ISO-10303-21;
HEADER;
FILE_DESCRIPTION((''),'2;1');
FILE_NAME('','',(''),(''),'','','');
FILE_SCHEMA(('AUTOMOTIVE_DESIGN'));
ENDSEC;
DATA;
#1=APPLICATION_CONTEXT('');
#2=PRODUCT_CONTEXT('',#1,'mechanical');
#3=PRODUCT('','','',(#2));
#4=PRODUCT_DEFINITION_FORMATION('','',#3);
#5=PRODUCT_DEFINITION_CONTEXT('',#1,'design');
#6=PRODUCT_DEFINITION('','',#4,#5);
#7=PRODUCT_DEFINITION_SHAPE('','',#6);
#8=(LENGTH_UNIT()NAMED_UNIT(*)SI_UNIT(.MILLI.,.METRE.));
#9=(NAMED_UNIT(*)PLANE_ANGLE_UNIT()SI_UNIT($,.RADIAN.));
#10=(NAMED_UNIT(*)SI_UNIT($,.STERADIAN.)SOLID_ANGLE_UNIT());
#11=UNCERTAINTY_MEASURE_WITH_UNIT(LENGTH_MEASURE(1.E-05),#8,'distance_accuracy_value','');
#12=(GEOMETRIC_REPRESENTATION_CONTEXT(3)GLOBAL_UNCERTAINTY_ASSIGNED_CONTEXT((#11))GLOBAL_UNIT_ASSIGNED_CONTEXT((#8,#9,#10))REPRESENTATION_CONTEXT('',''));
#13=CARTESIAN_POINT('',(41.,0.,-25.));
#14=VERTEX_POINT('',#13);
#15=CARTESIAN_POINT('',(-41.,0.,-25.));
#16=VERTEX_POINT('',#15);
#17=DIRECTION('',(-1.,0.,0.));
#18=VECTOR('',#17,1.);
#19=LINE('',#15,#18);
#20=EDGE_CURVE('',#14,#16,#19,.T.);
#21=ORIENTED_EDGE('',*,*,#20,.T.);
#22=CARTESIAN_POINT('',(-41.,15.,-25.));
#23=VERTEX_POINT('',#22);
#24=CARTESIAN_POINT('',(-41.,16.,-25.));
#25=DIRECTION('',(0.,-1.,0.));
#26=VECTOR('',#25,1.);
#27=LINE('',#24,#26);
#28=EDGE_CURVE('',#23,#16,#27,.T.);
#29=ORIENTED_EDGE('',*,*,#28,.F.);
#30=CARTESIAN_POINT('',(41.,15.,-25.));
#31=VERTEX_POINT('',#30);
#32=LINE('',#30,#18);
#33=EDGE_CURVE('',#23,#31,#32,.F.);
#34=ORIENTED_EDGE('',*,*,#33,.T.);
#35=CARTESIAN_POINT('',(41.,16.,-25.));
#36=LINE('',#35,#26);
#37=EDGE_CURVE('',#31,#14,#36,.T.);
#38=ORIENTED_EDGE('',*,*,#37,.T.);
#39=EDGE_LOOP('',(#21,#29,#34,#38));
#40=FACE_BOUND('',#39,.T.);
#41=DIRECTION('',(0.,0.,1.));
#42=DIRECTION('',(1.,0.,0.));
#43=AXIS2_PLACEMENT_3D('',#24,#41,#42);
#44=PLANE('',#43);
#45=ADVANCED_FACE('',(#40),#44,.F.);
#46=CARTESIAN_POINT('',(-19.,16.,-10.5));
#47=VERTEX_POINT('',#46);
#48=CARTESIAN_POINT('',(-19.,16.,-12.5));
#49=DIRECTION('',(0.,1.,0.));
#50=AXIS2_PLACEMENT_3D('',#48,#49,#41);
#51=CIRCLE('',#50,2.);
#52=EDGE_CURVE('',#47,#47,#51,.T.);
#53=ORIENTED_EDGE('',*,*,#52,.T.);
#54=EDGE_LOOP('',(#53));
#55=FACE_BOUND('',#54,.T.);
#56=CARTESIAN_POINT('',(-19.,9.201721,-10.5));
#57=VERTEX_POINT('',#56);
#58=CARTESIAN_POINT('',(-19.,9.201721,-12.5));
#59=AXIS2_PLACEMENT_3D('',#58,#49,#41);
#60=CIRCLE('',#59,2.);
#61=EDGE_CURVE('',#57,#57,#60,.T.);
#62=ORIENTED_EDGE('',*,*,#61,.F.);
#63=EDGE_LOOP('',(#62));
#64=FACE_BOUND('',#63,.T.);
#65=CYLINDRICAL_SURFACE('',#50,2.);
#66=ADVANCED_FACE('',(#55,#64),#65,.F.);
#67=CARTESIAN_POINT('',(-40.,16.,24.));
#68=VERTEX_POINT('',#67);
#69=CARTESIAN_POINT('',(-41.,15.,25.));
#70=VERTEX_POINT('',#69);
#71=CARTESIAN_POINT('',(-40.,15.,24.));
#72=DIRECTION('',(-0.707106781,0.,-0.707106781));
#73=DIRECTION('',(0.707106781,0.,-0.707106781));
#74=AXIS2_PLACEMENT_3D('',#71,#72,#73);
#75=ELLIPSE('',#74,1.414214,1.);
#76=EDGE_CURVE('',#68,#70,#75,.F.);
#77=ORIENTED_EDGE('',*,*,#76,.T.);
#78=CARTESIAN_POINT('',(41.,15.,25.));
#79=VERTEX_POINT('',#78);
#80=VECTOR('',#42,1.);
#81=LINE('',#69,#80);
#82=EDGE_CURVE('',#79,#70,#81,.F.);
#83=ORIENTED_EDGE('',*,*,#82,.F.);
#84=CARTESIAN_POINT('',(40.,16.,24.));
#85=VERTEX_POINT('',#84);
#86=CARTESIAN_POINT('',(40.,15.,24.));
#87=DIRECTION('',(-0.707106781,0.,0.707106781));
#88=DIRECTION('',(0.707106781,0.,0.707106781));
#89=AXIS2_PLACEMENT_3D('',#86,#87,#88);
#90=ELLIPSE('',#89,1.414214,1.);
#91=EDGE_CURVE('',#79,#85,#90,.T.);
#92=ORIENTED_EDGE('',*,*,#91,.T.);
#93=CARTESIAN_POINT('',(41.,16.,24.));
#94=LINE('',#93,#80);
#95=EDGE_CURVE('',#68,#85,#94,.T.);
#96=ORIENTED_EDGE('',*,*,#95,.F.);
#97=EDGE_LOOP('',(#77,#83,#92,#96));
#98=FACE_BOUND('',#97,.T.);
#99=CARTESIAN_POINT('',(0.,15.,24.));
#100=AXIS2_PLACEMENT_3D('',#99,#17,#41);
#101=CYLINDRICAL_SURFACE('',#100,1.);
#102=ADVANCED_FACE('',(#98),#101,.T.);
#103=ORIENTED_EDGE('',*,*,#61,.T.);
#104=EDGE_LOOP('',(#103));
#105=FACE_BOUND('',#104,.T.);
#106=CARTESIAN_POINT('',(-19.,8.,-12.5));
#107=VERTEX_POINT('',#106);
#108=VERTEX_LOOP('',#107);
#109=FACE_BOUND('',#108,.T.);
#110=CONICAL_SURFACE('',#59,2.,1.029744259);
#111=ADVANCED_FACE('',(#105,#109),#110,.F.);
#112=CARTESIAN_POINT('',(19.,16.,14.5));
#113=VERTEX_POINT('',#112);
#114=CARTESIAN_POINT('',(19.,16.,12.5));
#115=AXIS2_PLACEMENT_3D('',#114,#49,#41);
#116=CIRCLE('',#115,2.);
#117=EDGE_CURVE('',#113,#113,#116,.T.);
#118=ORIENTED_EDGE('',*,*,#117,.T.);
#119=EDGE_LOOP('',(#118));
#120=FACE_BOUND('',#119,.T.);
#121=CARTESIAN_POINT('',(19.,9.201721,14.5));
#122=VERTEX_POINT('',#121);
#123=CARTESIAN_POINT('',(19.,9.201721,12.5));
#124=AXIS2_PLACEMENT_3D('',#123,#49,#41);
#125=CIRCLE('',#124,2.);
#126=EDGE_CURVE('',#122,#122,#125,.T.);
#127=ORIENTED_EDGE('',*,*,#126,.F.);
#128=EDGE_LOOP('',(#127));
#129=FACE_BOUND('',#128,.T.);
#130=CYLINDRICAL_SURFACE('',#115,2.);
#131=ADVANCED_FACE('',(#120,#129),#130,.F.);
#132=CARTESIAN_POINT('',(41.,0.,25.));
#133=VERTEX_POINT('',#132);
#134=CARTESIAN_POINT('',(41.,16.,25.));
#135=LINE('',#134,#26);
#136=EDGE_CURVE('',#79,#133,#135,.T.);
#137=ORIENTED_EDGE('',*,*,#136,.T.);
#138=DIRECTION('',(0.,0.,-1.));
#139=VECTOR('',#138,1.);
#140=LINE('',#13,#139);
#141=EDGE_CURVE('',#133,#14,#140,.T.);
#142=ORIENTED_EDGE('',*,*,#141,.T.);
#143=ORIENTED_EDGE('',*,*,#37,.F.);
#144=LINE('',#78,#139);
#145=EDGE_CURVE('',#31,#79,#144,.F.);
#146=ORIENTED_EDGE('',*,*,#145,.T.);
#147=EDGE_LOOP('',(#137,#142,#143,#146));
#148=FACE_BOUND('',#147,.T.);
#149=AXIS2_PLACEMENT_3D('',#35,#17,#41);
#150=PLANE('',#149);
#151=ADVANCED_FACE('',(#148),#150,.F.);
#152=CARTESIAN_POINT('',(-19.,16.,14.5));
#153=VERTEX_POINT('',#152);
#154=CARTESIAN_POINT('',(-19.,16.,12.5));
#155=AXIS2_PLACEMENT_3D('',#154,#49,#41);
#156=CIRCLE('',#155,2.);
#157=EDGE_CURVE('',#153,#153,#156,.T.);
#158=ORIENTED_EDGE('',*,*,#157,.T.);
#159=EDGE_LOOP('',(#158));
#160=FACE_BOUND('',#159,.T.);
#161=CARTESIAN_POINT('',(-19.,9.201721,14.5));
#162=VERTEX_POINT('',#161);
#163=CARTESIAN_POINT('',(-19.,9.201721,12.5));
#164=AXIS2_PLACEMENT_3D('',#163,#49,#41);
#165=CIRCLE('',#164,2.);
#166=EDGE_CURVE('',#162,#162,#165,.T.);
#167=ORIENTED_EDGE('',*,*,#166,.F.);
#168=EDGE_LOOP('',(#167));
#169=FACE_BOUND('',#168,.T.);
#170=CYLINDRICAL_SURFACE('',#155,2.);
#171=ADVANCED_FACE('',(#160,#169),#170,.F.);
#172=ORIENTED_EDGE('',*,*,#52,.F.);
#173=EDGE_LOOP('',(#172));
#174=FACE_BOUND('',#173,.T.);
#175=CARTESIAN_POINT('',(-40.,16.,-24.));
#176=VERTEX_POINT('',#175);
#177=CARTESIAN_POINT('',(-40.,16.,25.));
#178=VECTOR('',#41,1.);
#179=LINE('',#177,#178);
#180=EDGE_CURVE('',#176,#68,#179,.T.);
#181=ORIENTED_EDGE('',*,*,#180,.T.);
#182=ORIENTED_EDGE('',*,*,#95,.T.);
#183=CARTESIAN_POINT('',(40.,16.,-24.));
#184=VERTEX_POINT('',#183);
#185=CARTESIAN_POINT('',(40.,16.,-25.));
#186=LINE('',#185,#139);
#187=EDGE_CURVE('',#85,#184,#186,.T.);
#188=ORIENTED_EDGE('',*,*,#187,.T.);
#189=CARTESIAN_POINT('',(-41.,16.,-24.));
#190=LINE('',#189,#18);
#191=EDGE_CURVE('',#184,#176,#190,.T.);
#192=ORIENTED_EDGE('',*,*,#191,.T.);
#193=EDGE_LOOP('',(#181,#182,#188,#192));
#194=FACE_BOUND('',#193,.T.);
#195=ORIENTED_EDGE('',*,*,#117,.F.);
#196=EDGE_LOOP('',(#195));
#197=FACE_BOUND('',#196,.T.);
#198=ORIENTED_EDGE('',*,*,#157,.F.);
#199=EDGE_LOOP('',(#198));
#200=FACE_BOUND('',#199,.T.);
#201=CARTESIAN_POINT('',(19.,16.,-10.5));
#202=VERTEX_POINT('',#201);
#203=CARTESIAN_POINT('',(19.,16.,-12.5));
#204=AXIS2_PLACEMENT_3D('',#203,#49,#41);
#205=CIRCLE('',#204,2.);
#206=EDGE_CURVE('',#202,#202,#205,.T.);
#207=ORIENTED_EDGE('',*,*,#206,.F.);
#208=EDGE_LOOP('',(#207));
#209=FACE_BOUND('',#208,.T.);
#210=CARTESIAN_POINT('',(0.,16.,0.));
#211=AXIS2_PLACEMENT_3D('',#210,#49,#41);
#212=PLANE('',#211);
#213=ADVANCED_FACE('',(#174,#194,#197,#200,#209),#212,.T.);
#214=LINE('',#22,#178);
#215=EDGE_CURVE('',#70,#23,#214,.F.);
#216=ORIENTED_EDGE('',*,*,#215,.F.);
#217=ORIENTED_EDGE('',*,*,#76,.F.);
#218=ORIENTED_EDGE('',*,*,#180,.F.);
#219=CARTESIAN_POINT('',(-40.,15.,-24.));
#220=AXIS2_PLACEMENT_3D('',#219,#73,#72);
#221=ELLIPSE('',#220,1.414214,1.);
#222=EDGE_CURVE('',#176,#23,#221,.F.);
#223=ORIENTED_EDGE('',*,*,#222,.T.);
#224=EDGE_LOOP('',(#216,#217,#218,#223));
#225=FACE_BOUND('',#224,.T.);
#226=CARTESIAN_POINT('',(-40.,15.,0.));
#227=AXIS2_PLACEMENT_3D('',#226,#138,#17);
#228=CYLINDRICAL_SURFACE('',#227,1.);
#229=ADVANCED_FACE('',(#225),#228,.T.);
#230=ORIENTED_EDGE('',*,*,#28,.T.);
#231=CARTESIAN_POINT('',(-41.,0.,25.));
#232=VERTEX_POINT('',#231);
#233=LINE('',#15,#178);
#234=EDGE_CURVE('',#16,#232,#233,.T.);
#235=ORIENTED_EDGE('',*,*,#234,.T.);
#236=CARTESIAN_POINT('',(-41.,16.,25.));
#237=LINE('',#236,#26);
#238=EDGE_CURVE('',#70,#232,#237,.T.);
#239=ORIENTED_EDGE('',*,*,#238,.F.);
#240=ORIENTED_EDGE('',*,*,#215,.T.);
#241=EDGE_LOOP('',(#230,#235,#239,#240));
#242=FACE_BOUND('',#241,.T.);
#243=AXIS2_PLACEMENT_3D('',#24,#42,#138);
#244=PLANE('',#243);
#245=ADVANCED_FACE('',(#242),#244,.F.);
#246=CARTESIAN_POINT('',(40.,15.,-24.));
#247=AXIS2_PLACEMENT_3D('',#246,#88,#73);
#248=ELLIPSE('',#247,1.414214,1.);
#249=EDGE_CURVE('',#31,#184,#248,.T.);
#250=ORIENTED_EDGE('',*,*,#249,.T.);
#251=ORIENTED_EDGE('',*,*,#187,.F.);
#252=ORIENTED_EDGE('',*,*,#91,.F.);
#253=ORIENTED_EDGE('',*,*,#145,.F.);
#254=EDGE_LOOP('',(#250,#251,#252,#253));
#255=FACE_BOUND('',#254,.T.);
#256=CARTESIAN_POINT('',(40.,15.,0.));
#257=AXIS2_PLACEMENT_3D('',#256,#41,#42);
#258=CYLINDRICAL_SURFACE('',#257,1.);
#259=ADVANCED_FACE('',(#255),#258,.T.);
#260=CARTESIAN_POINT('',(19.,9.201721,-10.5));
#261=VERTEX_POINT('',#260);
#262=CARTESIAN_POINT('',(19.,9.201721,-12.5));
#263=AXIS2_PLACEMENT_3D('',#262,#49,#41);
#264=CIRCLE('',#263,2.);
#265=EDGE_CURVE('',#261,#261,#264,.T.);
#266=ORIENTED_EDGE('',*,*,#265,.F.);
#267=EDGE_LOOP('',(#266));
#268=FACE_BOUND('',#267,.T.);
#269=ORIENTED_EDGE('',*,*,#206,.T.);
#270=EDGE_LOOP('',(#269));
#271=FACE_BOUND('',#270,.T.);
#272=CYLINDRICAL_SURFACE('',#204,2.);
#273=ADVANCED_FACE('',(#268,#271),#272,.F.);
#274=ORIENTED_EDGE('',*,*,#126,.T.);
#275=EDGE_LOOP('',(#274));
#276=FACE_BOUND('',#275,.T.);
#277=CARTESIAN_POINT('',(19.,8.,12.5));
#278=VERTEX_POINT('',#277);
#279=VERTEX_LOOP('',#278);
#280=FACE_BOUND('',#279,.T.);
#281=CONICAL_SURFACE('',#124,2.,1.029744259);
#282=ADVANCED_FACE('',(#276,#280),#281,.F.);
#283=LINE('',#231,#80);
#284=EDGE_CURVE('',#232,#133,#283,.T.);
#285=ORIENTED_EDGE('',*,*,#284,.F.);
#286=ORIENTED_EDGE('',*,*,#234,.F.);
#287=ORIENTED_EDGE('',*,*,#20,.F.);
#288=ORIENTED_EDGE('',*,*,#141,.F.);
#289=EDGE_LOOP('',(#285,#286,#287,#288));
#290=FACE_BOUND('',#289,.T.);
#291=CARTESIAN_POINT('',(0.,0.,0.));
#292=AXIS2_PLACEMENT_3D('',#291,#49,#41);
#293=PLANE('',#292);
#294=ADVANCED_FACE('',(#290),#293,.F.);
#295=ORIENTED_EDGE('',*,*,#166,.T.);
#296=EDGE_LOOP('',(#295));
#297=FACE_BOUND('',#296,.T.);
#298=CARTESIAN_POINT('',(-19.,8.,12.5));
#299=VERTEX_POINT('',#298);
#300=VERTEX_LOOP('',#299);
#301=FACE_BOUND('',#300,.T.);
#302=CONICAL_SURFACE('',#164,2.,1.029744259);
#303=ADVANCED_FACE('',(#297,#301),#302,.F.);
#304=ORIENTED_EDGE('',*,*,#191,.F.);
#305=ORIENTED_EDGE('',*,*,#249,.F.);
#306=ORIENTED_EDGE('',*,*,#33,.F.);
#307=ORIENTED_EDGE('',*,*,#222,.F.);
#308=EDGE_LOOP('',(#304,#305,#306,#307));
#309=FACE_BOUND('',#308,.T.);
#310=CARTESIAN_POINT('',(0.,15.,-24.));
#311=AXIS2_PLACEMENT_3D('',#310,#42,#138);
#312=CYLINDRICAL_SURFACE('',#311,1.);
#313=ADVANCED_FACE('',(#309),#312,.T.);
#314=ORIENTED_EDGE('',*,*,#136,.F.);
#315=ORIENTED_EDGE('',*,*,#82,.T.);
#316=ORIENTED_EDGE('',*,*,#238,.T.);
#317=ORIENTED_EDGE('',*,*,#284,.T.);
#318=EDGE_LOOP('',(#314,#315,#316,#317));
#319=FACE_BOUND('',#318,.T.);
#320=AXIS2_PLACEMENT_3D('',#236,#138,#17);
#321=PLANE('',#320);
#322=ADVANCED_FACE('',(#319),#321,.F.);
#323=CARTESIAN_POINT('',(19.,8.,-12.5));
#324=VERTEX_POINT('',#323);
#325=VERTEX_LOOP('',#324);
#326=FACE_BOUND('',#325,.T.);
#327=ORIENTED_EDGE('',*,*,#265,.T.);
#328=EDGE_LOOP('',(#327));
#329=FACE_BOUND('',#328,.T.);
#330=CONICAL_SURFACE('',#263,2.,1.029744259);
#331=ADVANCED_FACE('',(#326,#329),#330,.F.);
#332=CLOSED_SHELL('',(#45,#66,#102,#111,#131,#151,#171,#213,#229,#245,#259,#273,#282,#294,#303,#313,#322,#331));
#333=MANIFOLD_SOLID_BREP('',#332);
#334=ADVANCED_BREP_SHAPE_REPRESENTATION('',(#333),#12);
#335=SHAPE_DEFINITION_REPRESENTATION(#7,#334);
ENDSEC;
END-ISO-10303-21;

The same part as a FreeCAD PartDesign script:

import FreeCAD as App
import Part
import Sketcher

V = App.Vector
Q = App.Units.Quantity


def edges_at(feature, points):
    """Names of the edges that pass closest to the given points."""
    edges = feature.Shape.Edges
    near = lambda p: min(range(len(edges)), key=lambda i: edges[i].distToShape(Part.Vertex(*p))[0])
    return sorted({f"Edge{near(p) + 1}" for p in points})

doc = App.newDocument("Part")
body = doc.addObject("PartDesign::Body", "Body")

# Sketch on XZ plane
sketch1 = doc.addObject("Sketcher::SketchObject", "Sketch")
body.addObject(sketch1)
sketch1.AttachmentSupport = (doc.XZ_Plane, [""])
sketch1.MapMode = "FlatFace"
sketch1.addGeometry([
    Part.LineSegment(V(-41, -25, 0), V(-41, 25, 0)),
    Part.LineSegment(V(-41, 25, 0), V(41, 25, 0)),
    Part.LineSegment(V(41, 25, 0), V(41, -25, 0)),
    Part.LineSegment(V(41, -25, 0), V(-41, -25, 0)),
], False)
sketch1.addConstraint([
    Sketcher.Constraint("Coincident", 0, 2, 1, 1),
    Sketcher.Constraint("Coincident", 1, 2, 2, 1),
    Sketcher.Constraint("Coincident", 2, 2, 3, 1),
    Sketcher.Constraint("Coincident", 3, 2, 0, 1),
    Sketcher.Constraint("Vertical", 0),
    Sketcher.Constraint("Horizontal", 1),
    Sketcher.Constraint("Vertical", 2),
    Sketcher.Constraint("Horizontal", 3),
    Sketcher.Constraint("Symmetric", 0, 2, 2, 2, -1, 1),
    Sketcher.Constraint("DistanceX", 1, 1, 1, 2, Q("82 mm")),
    Sketcher.Constraint("DistanceY", 0, 1, 0, 2, Q("50 mm")),
])
pad1 = doc.addObject("PartDesign::Pad", "Pad")
body.addObject(pad1)
pad1.Profile = sketch1
pad1.Length = 16
pad1.Reversed = True
doc.recompute()

fillet = doc.addObject("PartDesign::Fillet", "Fillet")
body.addObject(fillet)
fillet.Base = (pad1, edges_at(pad1, [
    (-41, 16, 0),
    (0, 16, 25),
    (41, 16, 0),
    (0, 16, -25),
]))
fillet.Radius = 1

# Sketch on XZ plane
sketch2 = doc.addObject("Sketcher::SketchObject", "Sketch001")
body.addObject(sketch2)
sketch2.AttachmentSupport = (doc.XZ_Plane, [""])
sketch2.MapMode = "FlatFace"
sketch2.AttachmentOffset = App.Placement(V(0, 0, -16), App.Rotation())
sketch2.addGeometry([
    Part.Circle(V(-19, -12.5, 0), V(0, 0, 1), 2),
    Part.Circle(V(19, -12.5, 0), V(0, 0, 1), 2),
    Part.Circle(V(19, 12.5, 0), V(0, 0, 1), 2),
    Part.Circle(V(-19, 12.5, 0), V(0, 0, 1), 2),
], False)
sketch2.addConstraint([
    Sketcher.Constraint("Equal", 0, 1),
    Sketcher.Constraint("Equal", 1, 2),
    Sketcher.Constraint("Equal", 2, 3),
    Sketcher.Constraint("Symmetric", 0, 3, 2, 3, -1, 1),
    Sketcher.Constraint("Symmetric", 1, 3, 3, 3, -1, 1),
    Sketcher.Constraint("Symmetric", 0, 3, 1, 3, -2),
    Sketcher.Constraint("Diameter", 0, Q("4 mm")),
    Sketcher.Constraint("DistanceX", 0, 3, -1, 1, Q("19 mm")),
    Sketcher.Constraint("DistanceY", 1, 3, 2, 3, Q("25 mm")),
])
doc.recompute()
hole = doc.addObject("PartDesign::Hole", "Hole")
body.addObject(hole)
hole.Profile = sketch2
hole.ThreadType = "None"
hole.Diameter = 4
hole.DepthType = "Dimension"
hole.Depth = 6.798279
hole.DrillPoint = "Angled"
hole.DrillPointAngle = 118
hole.Reversed = True

doc.recompute()
